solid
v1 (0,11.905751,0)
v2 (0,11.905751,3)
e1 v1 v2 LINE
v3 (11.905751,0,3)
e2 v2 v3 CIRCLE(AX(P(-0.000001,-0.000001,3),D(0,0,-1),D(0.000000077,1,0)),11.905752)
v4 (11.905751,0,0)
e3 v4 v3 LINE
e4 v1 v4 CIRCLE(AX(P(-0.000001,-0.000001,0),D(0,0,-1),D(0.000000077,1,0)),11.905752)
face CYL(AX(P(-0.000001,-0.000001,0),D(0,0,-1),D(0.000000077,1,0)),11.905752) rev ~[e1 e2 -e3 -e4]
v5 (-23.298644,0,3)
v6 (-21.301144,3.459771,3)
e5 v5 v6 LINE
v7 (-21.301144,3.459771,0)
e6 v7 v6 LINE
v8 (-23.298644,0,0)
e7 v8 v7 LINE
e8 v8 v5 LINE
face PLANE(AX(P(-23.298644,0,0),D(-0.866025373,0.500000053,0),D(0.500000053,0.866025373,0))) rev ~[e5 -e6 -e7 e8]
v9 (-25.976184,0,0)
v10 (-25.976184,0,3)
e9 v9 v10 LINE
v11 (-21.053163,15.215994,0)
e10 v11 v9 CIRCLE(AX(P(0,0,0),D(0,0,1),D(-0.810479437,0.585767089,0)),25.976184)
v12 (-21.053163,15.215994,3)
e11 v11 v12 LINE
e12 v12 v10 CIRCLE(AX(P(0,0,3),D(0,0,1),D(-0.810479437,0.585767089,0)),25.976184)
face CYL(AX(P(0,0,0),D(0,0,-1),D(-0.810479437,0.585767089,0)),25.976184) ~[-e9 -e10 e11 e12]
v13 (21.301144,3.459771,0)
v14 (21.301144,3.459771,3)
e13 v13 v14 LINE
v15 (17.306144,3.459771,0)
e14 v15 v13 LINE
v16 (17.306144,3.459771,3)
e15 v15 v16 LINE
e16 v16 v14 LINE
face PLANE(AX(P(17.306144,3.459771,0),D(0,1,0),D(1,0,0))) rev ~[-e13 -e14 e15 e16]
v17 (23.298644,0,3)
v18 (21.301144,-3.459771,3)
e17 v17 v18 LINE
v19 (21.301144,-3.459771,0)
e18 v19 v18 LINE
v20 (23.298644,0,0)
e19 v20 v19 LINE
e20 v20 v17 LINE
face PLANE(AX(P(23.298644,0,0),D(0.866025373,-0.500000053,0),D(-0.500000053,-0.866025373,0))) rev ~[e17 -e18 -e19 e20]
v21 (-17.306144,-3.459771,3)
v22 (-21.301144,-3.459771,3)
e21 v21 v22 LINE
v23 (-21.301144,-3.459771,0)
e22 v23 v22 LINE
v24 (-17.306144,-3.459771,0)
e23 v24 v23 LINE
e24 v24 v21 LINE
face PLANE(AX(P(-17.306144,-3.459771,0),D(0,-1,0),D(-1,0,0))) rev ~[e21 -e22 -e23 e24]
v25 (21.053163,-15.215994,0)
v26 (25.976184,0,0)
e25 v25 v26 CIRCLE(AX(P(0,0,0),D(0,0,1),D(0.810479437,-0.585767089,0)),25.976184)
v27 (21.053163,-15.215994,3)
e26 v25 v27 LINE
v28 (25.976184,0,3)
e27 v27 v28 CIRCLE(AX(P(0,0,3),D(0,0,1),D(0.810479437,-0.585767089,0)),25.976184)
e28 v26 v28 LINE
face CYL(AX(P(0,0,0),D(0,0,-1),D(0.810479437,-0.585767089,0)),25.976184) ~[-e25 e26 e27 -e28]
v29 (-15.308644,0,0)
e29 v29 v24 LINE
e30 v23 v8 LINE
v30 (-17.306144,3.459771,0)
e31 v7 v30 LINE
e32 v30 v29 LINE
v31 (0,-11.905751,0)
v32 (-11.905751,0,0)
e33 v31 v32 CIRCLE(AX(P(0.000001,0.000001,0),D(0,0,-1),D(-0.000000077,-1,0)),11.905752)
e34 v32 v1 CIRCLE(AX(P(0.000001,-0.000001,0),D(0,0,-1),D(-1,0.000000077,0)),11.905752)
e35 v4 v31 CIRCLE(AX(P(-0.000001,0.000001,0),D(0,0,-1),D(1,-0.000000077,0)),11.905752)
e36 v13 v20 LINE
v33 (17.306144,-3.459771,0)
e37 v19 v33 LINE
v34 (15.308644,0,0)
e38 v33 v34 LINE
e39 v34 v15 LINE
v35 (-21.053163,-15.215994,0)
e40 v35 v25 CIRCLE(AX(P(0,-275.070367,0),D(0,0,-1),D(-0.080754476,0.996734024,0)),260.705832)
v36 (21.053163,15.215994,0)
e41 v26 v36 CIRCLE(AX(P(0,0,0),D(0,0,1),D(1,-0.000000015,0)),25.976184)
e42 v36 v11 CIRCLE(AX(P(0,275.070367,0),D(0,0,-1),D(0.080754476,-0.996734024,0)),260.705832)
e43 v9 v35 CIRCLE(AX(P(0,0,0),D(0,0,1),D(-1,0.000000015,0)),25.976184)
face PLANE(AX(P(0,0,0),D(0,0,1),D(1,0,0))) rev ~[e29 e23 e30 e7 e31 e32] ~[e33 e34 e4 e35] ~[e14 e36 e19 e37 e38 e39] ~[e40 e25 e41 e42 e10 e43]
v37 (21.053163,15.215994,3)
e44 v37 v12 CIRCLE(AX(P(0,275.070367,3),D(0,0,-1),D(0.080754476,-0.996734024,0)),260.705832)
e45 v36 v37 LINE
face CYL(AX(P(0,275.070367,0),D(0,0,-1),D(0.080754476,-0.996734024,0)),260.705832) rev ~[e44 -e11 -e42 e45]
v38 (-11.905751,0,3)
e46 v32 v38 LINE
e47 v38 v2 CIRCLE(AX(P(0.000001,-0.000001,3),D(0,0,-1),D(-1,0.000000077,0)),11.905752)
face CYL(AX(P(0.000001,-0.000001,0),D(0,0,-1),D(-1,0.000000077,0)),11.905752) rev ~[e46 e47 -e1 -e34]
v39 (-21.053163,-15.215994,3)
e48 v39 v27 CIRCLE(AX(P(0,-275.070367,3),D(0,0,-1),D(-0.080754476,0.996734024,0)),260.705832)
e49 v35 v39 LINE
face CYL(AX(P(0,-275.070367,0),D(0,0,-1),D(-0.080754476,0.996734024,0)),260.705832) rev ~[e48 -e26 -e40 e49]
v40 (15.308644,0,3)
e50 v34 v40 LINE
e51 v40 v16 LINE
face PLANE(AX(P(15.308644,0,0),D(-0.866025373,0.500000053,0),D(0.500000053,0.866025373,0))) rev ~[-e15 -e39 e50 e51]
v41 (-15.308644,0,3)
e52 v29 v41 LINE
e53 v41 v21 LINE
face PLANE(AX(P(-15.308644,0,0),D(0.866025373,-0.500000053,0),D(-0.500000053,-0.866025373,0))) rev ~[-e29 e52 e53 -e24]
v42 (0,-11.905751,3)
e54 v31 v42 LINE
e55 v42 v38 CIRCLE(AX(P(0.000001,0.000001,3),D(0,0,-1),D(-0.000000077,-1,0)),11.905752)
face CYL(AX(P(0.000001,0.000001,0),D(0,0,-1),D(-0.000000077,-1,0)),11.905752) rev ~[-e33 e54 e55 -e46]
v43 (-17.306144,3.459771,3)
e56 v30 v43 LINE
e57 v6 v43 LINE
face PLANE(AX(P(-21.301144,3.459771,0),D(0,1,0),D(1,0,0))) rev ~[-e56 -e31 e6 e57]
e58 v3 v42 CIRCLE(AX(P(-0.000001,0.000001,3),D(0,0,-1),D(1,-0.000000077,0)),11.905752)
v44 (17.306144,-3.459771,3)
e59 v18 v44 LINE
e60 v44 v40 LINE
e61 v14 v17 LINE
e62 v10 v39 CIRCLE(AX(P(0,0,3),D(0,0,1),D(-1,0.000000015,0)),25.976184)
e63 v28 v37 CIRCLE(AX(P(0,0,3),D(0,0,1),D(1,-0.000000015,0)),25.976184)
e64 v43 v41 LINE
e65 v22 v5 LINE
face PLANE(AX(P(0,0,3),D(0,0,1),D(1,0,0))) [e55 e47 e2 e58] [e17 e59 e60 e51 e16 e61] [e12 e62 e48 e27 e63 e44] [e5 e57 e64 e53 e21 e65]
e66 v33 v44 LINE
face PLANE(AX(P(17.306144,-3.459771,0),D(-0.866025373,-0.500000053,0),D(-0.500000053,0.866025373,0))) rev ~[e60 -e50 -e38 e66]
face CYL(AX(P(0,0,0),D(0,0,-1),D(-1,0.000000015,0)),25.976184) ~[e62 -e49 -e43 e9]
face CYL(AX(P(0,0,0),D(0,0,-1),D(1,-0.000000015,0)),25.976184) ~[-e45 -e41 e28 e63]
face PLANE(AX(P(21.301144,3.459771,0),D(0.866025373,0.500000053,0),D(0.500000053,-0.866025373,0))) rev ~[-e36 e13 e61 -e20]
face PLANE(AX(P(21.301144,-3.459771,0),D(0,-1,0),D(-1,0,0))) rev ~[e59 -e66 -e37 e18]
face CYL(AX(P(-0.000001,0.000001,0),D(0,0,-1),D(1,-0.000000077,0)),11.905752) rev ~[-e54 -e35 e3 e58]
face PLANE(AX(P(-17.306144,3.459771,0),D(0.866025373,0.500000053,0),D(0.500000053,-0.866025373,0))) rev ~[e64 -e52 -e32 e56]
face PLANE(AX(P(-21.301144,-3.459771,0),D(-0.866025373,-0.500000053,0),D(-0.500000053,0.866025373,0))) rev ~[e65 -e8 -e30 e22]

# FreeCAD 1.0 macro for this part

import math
import FreeCAD as App
import Part
import Sketcher
Q = App.Units.Quantity

doc = App.newDocument("Part")
body = doc.addObject("PartDesign::Body", "Body")

sketch1 = body.newObject("Sketcher::SketchObject", "Sketch")
sketch1.AttachmentSupport = (doc.getObject("XY_Plane"), [""])
sketch1.MapMode = "FlatFace"
sketch1.addGeometry(Part.ArcOfCircle(Part.Circle(App.Vector(0, 0, 0), App.Vector(0, 0, 1), 26), math.radians(-36), math.radians(0)), False)
sketch1.addGeometry(Part.ArcOfCircle(Part.Circle(App.Vector(0, 0, 0), App.Vector(0, 0, 1), 26), math.radians(0), math.radians(36)), False)
sketch1.addGeometry(Part.ArcOfCircle(Part.Circle(App.Vector(0, 275.1, 0), App.Vector(0, 0, 1), 260.7), math.radians(-94.63), math.radians(-85.37)), False)
sketch1.addGeometry(Part.ArcOfCircle(Part.Circle(App.Vector(0, 0, 0), App.Vector(0, 0, 1), 26), math.radians(144), math.radians(180)), False)
sketch1.addGeometry(Part.ArcOfCircle(Part.Circle(App.Vector(0, 0, 0), App.Vector(0, 0, 1), 26), math.radians(180), math.radians(216)), False)
sketch1.addGeometry(Part.ArcOfCircle(Part.Circle(App.Vector(0, -275.1, 0), App.Vector(0, 0, 1), 260.7), math.radians(85.37), math.radians(94.63)), False)
sketch1.addGeometry(Part.LineSegment(App.Vector(-21.3, 3.5, 0), App.Vector(-17.3, 3.5, 0)), False)
sketch1.addGeometry(Part.LineSegment(App.Vector(-17.3, 3.5, 0), App.Vector(-15.3, 0, 0)), False)
sketch1.addGeometry(Part.LineSegment(App.Vector(-15.3, 0, 0), App.Vector(-17.3, -3.5, 0)), False)
sketch1.addGeometry(Part.LineSegment(App.Vector(-17.3, -3.5, 0), App.Vector(-21.3, -3.5, 0)), False)
sketch1.addGeometry(Part.LineSegment(App.Vector(-21.3, -3.5, 0), App.Vector(-23.3, 0, 0)), False)
sketch1.addGeometry(Part.LineSegment(App.Vector(-23.3, 0, 0), App.Vector(-21.3, 3.5, 0)), False)
sketch1.addGeometry(Part.ArcOfCircle(Part.Circle(App.Vector(0, 0, 0), App.Vector(0, 0, 1), 11.9), math.radians(90), math.radians(180)), False)
sketch1.addGeometry(Part.ArcOfCircle(Part.Circle(App.Vector(0, 0, 0), App.Vector(0, 0, 1), 11.9), math.radians(0), math.radians(90)), False)
sketch1.addGeometry(Part.ArcOfCircle(Part.Circle(App.Vector(0, 0, 0), App.Vector(0, 0, 1), 11.9), math.radians(-90), math.radians(0)), False)
sketch1.addGeometry(Part.ArcOfCircle(Part.Circle(App.Vector(0, 0, 0), App.Vector(0, 0, 1), 11.9), math.radians(-180), math.radians(-90)), False)
sketch1.addGeometry(Part.LineSegment(App.Vector(15.3, 0, 0), App.Vector(17.3, 3.5, 0)), False)
sketch1.addGeometry(Part.LineSegment(App.Vector(17.3, 3.5, 0), App.Vector(21.3, 3.5, 0)), False)
sketch1.addGeometry(Part.LineSegment(App.Vector(21.3, 3.5, 0), App.Vector(23.3, 0, 0)), False)
sketch1.addGeometry(Part.LineSegment(App.Vector(23.3, 0, 0), App.Vector(21.3, -3.5, 0)), False)
sketch1.addGeometry(Part.LineSegment(App.Vector(21.3, -3.5, 0), App.Vector(17.3, -3.5, 0)), False)
sketch1.addGeometry(Part.LineSegment(App.Vector(17.3, -3.5, 0), App.Vector(15.3, 0, 0)), False)
sketch1.addConstraint(Sketcher.Constraint("Tangent", 0, 2, 1, 1))
sketch1.addConstraint(Sketcher.Constraint("Coincident", 1, 2, 2, 2))
sketch1.addConstraint(Sketcher.Constraint("Coincident", 2, 1, 3, 1))
sketch1.addConstraint(Sketcher.Constraint("Tangent", 3, 2, 4, 1))
sketch1.addConstraint(Sketcher.Constraint("Coincident", 4, 2, 5, 2))
sketch1.addConstraint(Sketcher.Constraint("Coincident", 5, 1, 0, 1))
sketch1.addConstraint(Sketcher.Constraint("Coincident", 6, 2, 7, 1))
sketch1.addConstraint(Sketcher.Constraint("Coincident", 7, 2, 8, 1))
sketch1.addConstraint(Sketcher.Constraint("Coincident", 8, 2, 9, 1))
sketch1.addConstraint(Sketcher.Constraint("Coincident", 9, 2, 10, 1))
sketch1.addConstraint(Sketcher.Constraint("Coincident", 10, 2, 11, 1))
sketch1.addConstraint(Sketcher.Constraint("Coincident", 11, 2, 6, 1))
sketch1.addConstraint(Sketcher.Constraint("Tangent", 12, 1, 13, 2))
sketch1.addConstraint(Sketcher.Constraint("Tangent", 13, 1, 14, 2))
sketch1.addConstraint(Sketcher.Constraint("Tangent", 14, 1, 15, 2))
sketch1.addConstraint(Sketcher.Constraint("Tangent", 15, 1, 12, 2))
sketch1.addConstraint(Sketcher.Constraint("Coincident", 16, 2, 17, 1))
sketch1.addConstraint(Sketcher.Constraint("Coincident", 17, 2, 18, 1))
sketch1.addConstraint(Sketcher.Constraint("Coincident", 18, 2, 19, 1))
sketch1.addConstraint(Sketcher.Constraint("Coincident", 19, 2, 20, 1))
sketch1.addConstraint(Sketcher.Constraint("Coincident", 20, 2, 21, 1))
sketch1.addConstraint(Sketcher.Constraint("Coincident", 21, 2, 16, 1))
sketch1.addConstraint(Sketcher.Constraint("Horizontal", 6))
sketch1.addConstraint(Sketcher.Constraint("Horizontal", 9))
sketch1.addConstraint(Sketcher.Constraint("Horizontal", 17))
sketch1.addConstraint(Sketcher.Constraint("Horizontal", 20))
sketch1.addConstraint(Sketcher.Constraint("Coincident", 0, 3, -1, 1))
sketch1.addConstraint(Sketcher.Constraint("Coincident", 3, 3, -1, 1))
sketch1.addConstraint(Sketcher.Constraint("Coincident", 12, 3, -1, 1))
sketch1.addConstraint(Sketcher.Constraint("Equal", 0, 1))
sketch1.addConstraint(Sketcher.Constraint("Equal", 1, 3))
sketch1.addConstraint(Sketcher.Constraint("Equal", 3, 4))
sketch1.addConstraint(Sketcher.Constraint("Equal", 2, 5))
sketch1.addConstraint(Sketcher.Constraint("Equal", 12, 13))
sketch1.addConstraint(Sketcher.Constraint("Symmetric", 2, 3, 5, 3, -1, 1))
sketch1.addConstraint(Sketcher.Constraint("Symmetric", 8, 2, 16, 2, -1, 1))
sketch1.addConstraint(Sketcher.Constraint("Symmetric", 10, 2, 18, 2, -1, 1))
sketch1.addConstraint(Sketcher.Constraint("Symmetric", 11, 2, 19, 2, -1, 1))
sketch1.addConstraint(Sketcher.Constraint("Symmetric", 7, 2, 21, 2, -1, 1))
sketch1.addConstraint(Sketcher.Constraint("Symmetric", 6, 2, 16, 2, -2))
sketch1.addConstraint(Sketcher.Constraint("PointOnObject", 2, 3, -2))
sketch1.addConstraint(Sketcher.Constraint("PointOnObject", 0, 2, -1))
sketch1.addConstraint(Sketcher.Constraint("PointOnObject", 3, 2, -1))
sketch1.addConstraint(Sketcher.Constraint("PointOnObject", 7, 2, -1))
sketch1.addConstraint(Sketcher.Constraint("PointOnObject", 10, 2, -1))
sketch1.addConstraint(Sketcher.Constraint("PointOnObject", 12, 1, -2))
sketch1.addConstraint(Sketcher.Constraint("PointOnObject", 13, 1, -1))
sketch1.addConstraint(Sketcher.Constraint("PointOnObject", 14, 1, -2))
sketch1.addConstraint(Sketcher.Constraint("PointOnObject", 15, 1, -1))
sketch1.addConstraint(Sketcher.Constraint("Parallel", 7, 10))
sketch1.addConstraint(Sketcher.Constraint("Parallel", 8, 11))
sketch1.addConstraint(Sketcher.Constraint("Parallel", 10, 18))
sketch1.addConstraint(Sketcher.Constraint("Parallel", 18, 21))
sketch1.addConstraint(Sketcher.Constraint("Angle", 7, Q("-59.999996 deg")))
sketch1.addConstraint(Sketcher.Constraint("DistanceX", 6, 1, 6, 2, 3.995))
sketch1.addConstraint(Sketcher.Constraint("Radius", 12, 11.905752))
sketch1.addConstraint(Sketcher.Constraint("DistanceX", 10, 2, 7, 2, 7.99))
sketch1.addConstraint(Sketcher.Constraint("Radius", 0, 25.976184))
sketch1.addConstraint(Sketcher.Constraint("Radius", 2, 260.705832))
sketch1.addConstraint(Sketcher.Constraint("DistanceX", 1, 2, 0, 2, 4.923021))
sketch1.addConstraint(Sketcher.Constraint("DistanceX", 3, 2, 6, 2, 8.67004))
pad1 = body.newObject("PartDesign::Pad", "Pad")
pad1.Profile = sketch1
pad1.Length = 3

doc.recompute()
